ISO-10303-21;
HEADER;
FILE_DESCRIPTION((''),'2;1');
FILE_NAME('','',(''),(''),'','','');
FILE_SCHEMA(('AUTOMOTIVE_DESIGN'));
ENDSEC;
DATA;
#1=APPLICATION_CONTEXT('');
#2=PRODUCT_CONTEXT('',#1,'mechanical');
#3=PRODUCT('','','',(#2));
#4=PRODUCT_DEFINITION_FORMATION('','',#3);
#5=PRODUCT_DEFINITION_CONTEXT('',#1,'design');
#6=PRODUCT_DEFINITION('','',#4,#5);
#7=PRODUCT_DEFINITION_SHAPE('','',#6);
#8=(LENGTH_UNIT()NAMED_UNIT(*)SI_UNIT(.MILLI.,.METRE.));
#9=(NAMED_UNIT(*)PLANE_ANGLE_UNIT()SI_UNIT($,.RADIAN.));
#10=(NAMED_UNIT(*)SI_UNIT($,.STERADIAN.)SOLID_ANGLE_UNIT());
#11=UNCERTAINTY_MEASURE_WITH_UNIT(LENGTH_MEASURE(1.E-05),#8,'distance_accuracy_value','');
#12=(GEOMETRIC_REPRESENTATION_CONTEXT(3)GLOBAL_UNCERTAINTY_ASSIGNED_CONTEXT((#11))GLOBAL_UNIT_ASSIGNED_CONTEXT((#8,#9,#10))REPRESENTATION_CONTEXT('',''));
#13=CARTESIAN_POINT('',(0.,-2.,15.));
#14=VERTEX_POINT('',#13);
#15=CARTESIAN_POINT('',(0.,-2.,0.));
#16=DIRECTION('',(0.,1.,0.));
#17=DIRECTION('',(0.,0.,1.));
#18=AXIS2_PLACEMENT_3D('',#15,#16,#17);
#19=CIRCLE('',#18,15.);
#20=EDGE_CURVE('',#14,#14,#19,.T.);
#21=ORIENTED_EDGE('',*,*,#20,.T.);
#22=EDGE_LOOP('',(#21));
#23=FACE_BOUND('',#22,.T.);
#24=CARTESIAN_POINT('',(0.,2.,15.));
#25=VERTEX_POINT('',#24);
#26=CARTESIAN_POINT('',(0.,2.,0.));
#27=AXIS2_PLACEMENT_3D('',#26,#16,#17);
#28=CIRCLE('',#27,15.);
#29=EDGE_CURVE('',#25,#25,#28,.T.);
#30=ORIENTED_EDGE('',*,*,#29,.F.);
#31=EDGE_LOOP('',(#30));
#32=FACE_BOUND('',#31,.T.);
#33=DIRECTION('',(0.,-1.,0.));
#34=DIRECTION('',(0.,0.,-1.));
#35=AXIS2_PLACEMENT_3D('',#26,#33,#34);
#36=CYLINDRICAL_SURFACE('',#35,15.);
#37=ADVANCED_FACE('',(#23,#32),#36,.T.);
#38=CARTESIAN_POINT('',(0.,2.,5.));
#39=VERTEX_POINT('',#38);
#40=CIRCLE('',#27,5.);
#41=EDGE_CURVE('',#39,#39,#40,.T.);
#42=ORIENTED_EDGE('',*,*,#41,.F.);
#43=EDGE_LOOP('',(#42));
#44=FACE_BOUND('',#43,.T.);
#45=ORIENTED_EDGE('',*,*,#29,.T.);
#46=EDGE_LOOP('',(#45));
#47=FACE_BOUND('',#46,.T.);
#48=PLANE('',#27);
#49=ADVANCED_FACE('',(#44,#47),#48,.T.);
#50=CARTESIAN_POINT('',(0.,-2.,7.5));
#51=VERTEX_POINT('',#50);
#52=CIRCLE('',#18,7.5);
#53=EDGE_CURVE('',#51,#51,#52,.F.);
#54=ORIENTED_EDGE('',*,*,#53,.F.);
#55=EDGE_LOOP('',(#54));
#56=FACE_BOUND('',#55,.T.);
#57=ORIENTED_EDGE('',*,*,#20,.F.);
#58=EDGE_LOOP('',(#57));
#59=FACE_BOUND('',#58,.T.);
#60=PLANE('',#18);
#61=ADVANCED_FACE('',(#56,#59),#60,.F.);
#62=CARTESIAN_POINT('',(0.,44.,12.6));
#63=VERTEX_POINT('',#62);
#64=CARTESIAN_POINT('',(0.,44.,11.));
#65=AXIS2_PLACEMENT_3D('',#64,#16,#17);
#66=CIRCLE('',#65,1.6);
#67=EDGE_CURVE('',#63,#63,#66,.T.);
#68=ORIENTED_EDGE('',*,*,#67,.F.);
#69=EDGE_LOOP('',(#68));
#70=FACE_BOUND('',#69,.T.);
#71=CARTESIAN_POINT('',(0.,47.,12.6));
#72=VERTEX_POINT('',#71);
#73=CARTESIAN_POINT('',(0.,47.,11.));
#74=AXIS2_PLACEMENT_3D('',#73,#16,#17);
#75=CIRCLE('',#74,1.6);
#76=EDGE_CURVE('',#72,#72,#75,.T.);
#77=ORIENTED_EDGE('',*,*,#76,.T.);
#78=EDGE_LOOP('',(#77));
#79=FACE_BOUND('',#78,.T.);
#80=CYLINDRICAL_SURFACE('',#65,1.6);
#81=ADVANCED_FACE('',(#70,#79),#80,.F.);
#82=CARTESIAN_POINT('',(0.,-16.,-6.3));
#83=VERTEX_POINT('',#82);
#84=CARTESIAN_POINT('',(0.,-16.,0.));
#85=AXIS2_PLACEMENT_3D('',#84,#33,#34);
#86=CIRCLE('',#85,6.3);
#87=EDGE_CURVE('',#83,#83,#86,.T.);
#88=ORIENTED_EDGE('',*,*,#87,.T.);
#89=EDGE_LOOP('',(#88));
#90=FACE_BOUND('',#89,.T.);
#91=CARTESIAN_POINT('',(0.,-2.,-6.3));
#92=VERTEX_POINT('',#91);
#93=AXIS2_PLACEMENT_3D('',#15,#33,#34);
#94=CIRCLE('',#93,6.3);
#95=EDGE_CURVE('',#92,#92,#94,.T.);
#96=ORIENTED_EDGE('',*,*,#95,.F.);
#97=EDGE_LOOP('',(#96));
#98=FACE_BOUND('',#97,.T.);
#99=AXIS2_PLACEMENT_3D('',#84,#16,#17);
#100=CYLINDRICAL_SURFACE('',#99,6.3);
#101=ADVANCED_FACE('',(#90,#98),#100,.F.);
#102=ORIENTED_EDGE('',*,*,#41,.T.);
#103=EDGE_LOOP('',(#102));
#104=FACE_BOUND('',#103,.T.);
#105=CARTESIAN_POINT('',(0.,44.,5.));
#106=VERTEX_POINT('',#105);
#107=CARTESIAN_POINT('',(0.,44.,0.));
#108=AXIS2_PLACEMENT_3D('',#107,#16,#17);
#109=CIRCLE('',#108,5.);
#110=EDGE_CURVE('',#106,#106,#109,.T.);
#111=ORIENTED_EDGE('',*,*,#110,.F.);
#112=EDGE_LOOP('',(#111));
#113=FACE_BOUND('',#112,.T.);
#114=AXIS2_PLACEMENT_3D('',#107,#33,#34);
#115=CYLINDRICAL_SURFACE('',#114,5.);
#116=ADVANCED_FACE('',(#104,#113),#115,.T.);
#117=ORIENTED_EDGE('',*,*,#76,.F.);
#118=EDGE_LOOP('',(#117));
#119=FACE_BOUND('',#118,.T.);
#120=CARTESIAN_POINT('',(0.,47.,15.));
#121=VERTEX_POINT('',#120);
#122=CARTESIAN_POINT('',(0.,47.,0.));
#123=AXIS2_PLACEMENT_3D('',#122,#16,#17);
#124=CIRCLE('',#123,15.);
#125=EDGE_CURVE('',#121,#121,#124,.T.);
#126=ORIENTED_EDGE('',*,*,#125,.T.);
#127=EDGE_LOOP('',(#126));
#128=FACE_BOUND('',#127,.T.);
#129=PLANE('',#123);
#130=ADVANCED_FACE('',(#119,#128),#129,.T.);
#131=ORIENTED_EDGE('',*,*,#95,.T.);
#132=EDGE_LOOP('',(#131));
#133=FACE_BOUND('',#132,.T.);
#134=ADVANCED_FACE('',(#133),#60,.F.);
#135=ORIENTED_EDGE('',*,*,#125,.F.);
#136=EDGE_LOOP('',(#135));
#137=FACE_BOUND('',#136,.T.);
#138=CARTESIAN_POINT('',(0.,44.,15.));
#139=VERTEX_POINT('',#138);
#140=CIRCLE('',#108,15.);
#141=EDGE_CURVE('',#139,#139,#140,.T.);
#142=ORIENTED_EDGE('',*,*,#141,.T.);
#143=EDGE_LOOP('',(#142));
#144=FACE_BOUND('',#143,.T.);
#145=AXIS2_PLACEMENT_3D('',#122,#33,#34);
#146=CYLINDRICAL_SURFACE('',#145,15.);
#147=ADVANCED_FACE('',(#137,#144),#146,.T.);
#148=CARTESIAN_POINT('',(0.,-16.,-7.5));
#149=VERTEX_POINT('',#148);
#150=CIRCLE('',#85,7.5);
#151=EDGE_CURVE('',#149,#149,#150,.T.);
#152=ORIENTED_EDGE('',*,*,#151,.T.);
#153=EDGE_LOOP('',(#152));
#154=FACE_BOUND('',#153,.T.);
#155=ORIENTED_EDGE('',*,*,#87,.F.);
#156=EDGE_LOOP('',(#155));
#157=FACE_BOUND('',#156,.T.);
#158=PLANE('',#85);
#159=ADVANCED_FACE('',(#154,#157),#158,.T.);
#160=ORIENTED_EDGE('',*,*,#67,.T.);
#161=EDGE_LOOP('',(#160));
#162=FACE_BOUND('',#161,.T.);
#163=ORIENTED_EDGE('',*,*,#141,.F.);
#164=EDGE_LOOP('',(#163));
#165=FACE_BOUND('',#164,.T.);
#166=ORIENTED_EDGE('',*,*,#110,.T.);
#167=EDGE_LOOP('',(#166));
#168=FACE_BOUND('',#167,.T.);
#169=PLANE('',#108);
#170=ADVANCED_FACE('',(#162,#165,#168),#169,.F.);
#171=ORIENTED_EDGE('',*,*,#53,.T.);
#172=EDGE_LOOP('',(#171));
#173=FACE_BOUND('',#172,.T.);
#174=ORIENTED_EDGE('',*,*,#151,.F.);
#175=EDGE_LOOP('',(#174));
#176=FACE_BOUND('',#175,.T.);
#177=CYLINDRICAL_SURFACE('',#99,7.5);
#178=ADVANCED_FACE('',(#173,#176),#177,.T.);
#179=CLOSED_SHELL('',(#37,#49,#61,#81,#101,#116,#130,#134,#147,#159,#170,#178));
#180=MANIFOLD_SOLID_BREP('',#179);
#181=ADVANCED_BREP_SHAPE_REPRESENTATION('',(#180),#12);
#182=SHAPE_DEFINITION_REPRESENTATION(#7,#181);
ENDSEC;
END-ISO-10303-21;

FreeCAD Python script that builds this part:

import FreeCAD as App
import Part
import Sketcher
Q = App.Units.Quantity

doc = App.newDocument("Part")
body = doc.addObject("PartDesign::Body", "Body")

sketch1 = doc.addObject("Sketcher::SketchObject", "Sketch")
body.addObject(sketch1)
sketch1.AttachmentSupport = (doc.XZ_Plane, [""])
sketch1.MapMode = "FlatFace"
sketch1.addGeometry(Part.Circle(App.Vector(0, 0, 0), App.Vector(0, 0, 1), 15), False)
sketch1.addConstraint([
    Sketcher.Constraint("Coincident", 0, 3, -1, 1),
    Sketcher.Constraint("Diameter", 0, Q("30 mm")),
])
pad1 = doc.addObject("PartDesign::Pad", "Pad")
body.addObject(pad1)
pad1.Profile = sketch1
pad1.Length = 4
pad1.Midplane = True

sketch2 = doc.addObject("Sketcher::SketchObject", "Sketch001")
body.addObject(sketch2)
sketch2.AttachmentSupport = (doc.XZ_Plane, [""])
sketch2.MapMode = "FlatFace"
sketch2.AttachmentOffset = App.Placement(App.Vector(0, 0, 2), App.Rotation())
sketch2.addGeometry([
    Part.Circle(App.Vector(0, 0, 0), App.Vector(0, 0, 1), 8),
    Part.Circle(App.Vector(0, 0, 0), App.Vector(0, 0, 1), 6),
], False)
sketch2.addConstraint([
    Sketcher.Constraint("Coincident", 0, 3, -1, 1),
    Sketcher.Constraint("Coincident", 1, 3, -1, 1),
    Sketcher.Constraint("Diameter", 0, Q("15 mm")),
    Sketcher.Constraint("Diameter", 1, Q("12.6 mm")),
])
pad2 = doc.addObject("PartDesign::Pad", "Pad001")
body.addObject(pad2)
pad2.Profile = sketch2
pad2.Length = 14

sketch3 = doc.addObject("Sketcher::SketchObject", "Sketch002")
body.addObject(sketch3)
sketch3.AttachmentSupport = (doc.XZ_Plane, [""])
sketch3.MapMode = "FlatFace"
sketch3.AttachmentOffset = App.Placement(App.Vector(0, 0, -2), App.Rotation())
sketch3.addGeometry(Part.Circle(App.Vector(0, 0, 0), App.Vector(0, 0, 1), 5), False)
sketch3.addConstraint([
    Sketcher.Constraint("Coincident", 0, 3, -1, 1),
    Sketcher.Constraint("Diameter", 0, Q("10 mm")),
])
pad3 = doc.addObject("PartDesign::Pad", "Pad002")
body.addObject(pad3)
pad3.Profile = sketch3
pad3.Length = 42
pad3.Reversed = True

sketch4 = doc.addObject("Sketcher::SketchObject", "Sketch003")
body.addObject(sketch4)
sketch4.AttachmentSupport = (doc.XZ_Plane, [""])
sketch4.MapMode = "FlatFace"
sketch4.AttachmentOffset = App.Placement(App.Vector(0, 0, -44), App.Rotation())
sketch4.addGeometry(Part.Circle(App.Vector(0, 0, 0), App.Vector(0, 0, 1), 15), False)
sketch4.addConstraint([
    Sketcher.Constraint("Coincident", 0, 3, -1, 1),
    Sketcher.Constraint("Diameter", 0, Q("30 mm")),
])
pad4 = doc.addObject("PartDesign::Pad", "Pad003")
body.addObject(pad4)
pad4.Profile = sketch4
pad4.Length = 3
pad4.Reversed = True

sketch5 = doc.addObject("Sketcher::SketchObject", "Sketch004")
body.addObject(sketch5)
sketch5.AttachmentSupport = (doc.XZ_Plane, [""])
sketch5.MapMode = "FlatFace"
sketch5.AttachmentOffset = App.Placement(App.Vector(0, 0, -47), App.Rotation())
sketch5.addGeometry(Part.Circle(App.Vector(0, 11, 0), App.Vector(0, 0, 1), 1.6), False)
sketch5.addConstraint([
    Sketcher.Constraint("PointOnObject", 0, 3, -2),
    Sketcher.Constraint("Diameter", 0, Q("3.2 mm")),
    Sketcher.Constraint("DistanceY", -1, 1, 0, 3, Q("11 mm")),
])
pocket1 = doc.addObject("PartDesign::Pocket", "Pocket")
body.addObject(pocket1)
pocket1.Profile = sketch5
pocket1.Length = 3
pocket1.Reversed = True

doc.recompute()
